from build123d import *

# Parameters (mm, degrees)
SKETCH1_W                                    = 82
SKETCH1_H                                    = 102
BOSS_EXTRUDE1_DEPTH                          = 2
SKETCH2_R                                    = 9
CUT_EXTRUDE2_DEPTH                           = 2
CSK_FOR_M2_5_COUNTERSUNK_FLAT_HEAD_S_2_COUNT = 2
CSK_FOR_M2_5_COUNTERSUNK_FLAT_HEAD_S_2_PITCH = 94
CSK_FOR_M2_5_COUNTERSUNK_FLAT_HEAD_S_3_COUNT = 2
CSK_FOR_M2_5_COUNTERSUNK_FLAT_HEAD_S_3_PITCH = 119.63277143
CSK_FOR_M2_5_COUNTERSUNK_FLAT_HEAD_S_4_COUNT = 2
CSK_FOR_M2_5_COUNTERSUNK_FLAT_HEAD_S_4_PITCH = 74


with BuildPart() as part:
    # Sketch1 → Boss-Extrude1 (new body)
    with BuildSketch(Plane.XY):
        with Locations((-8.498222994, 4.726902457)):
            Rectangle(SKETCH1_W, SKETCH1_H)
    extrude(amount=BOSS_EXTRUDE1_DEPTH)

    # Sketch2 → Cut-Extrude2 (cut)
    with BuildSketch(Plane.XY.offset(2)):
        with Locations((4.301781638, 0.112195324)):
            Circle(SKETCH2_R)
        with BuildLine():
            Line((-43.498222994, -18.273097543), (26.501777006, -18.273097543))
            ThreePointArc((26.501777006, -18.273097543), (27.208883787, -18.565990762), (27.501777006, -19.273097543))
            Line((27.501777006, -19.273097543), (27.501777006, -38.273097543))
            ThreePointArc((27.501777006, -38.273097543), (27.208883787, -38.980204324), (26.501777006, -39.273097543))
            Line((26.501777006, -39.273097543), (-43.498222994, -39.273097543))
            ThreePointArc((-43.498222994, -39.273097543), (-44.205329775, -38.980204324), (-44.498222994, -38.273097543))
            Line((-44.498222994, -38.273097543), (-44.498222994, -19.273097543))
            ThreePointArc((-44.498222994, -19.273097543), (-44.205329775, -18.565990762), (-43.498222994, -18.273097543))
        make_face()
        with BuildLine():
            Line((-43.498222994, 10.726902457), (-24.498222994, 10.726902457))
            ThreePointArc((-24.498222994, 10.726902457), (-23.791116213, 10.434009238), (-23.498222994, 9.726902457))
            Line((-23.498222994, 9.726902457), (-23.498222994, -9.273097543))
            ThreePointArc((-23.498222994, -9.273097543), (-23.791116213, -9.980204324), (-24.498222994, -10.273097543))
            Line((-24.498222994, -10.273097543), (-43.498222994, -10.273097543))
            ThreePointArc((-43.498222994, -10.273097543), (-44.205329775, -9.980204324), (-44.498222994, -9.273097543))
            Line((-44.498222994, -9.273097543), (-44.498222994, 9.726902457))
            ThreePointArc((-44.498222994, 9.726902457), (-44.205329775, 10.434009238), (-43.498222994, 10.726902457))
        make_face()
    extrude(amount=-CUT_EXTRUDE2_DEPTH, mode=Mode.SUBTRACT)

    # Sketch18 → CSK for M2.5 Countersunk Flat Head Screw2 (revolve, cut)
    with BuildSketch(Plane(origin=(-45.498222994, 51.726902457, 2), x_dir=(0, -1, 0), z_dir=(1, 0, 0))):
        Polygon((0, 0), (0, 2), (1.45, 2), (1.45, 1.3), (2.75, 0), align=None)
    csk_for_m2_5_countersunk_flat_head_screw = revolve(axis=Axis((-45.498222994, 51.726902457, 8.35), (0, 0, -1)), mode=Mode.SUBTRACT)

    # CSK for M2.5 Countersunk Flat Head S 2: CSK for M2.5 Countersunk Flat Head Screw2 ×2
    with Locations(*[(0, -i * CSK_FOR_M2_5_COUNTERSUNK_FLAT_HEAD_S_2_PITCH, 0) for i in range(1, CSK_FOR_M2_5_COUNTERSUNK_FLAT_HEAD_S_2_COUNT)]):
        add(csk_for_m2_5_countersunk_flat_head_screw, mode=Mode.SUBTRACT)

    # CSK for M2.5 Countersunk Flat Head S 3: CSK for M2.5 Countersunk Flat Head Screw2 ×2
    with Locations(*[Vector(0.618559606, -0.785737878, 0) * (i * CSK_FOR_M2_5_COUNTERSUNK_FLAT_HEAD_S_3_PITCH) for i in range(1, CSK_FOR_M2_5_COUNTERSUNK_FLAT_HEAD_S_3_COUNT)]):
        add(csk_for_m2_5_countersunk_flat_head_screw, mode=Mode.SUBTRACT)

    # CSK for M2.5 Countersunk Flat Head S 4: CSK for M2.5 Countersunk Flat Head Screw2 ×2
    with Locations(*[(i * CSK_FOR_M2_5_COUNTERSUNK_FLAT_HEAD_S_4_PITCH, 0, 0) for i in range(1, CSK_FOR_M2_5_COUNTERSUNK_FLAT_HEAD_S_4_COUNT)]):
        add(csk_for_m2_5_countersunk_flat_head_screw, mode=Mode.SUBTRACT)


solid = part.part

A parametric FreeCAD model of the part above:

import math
import FreeCAD as App
import Part
import Sketcher

V = App.Vector
Q = App.Units.Quantity

doc = App.newDocument("Part")
params = doc.addObject("Spreadsheet::Sheet", "Params")
for row, (alias, value) in enumerate([
    ("sketch1_width", "82 mm"),
    ("sketch1_height", "102 mm"),
    ("pad1_length", "2 mm"),
    ("sketch2_diameter", "18 mm"),
    ("sketch2_radius", "1 mm"),
    ("sketch2_width", "70 mm"),
    ("sketch2_width2", "19 mm"),
    ("pocket1_length", "2 mm"),
    ("sketch3_height", "2 mm"),
    ("sketch3_height2", "0.7 mm"),
    ("sketch3_width", "2.75 mm"),
    ("groove_angle", "360 deg"),
    ("linearpattern_pitch", "94 mm"),
    ("linearpattern2_pitch", "119.632771 mm"),
    ("linearpattern3_pitch", "74 mm"),
], start=1):
    params.set(f"A{row}", alias)
    params.set(f"B{row}", "=" + value)
    params.setAlias(f"B{row}", alias)

body = doc.addObject("PartDesign::Body", "Body")

# Sketch on XY plane
sketch1 = doc.addObject("Sketcher::SketchObject", "Sketch")
body.addObject(sketch1)
sketch1.AttachmentSupport = (doc.XY_Plane, [""])
sketch1.MapMode = "FlatFace"
sketch1.addGeometry(Part.LineSegment(V(-49, 56, 0), V(-49, -46, 0)), False)
sketch1.addGeometry(Part.LineSegment(V(-49, -46, 0), V(33, -46, 0)), False)
sketch1.addGeometry(Part.LineSegment(V(33, -46, 0), V(33, 56, 0)), False)
sketch1.addGeometry(Part.LineSegment(V(33, 56, 0), V(-49, 56, 0)), False)
sketch1.addConstraint(Sketcher.Constraint("Coincident", 0, 2, 1, 1))
sketch1.addConstraint(Sketcher.Constraint("Coincident", 1, 2, 2, 1))
sketch1.addConstraint(Sketcher.Constraint("Coincident", 2, 2, 3, 1))
sketch1.addConstraint(Sketcher.Constraint("Coincident", 3, 2, 0, 1))
sketch1.addConstraint(Sketcher.Constraint("Vertical", 0))
sketch1.addConstraint(Sketcher.Constraint("Horizontal", 1))
sketch1.addConstraint(Sketcher.Constraint("Vertical", 2))
sketch1.addConstraint(Sketcher.Constraint("Horizontal", 3))
sketch1.addConstraint(Sketcher.Constraint("DistanceX", 1, 1, 1, 2, Q("82 mm")))
sketch1.addConstraint(Sketcher.Constraint("DistanceY", 0, 2, 0, 1, Q("102 mm")))
sketch1.addConstraint(Sketcher.Constraint("DistanceX", 0, 2, -1, 1, Q("49.498223 mm")))
sketch1.addConstraint(Sketcher.Constraint("DistanceY", 0, 2, -1, 1, Q("46.273098 mm")))
sketch1.setExpression("Constraints[8]", "Params.sketch1_width")
sketch1.setExpression("Constraints[9]", "Params.sketch1_height")
pad1 = doc.addObject("PartDesign::Pad", "Pad")
body.addObject(pad1)
pad1.Profile = sketch1
pad1.setExpression("Length", "Params.pad1_length")

# Sketch on XY plane
sketch2 = doc.addObject("Sketcher::SketchObject", "Sketch001")
body.addObject(sketch2)
sketch2.AttachmentSupport = (doc.XY_Plane, [""])
sketch2.MapMode = "FlatFace"
sketch2.AttachmentOffset = App.Placement(V(0, 0, 2), App.Rotation())
sketch2.addGeometry(Part.Circle(V(4.3, 0.1, 0), V(0, 0, 1), 9), False)
sketch2.addGeometry(Part.LineSegment(V(26.5, -18.3, 0), V(-43.5, -18.3, 0)), False)
sketch2.addGeometry(Part.ArcOfCircle(Part.Circle(V(-43.5, -19.3, 0), V(0, 0, 1), 1), math.radians(90), math.radians(180)), False)
sketch2.addGeometry(Part.LineSegment(V(-44.5, -19.3, 0), V(-44.5, -38.3, 0)), False)
sketch2.addGeometry(Part.ArcOfCircle(Part.Circle(V(-43.5, -38.3, 0), V(0, 0, 1), 1), math.radians(-180), math.radians(-90)), False)
sketch2.addGeometry(Part.LineSegment(V(-43.5, -39.3, 0), V(26.5, -39.3, 0)), False)
sketch2.addGeometry(Part.ArcOfCircle(Part.Circle(V(26.5, -38.3, 0), V(0, 0, 1), 1), math.radians(-90), math.radians(0)), False)
sketch2.addGeometry(Part.LineSegment(V(27.5, -38.3, 0), V(27.5, -19.3, 0)), False)
sketch2.addGeometry(Part.ArcOfCircle(Part.Circle(V(26.5, -19.3, 0), V(0, 0, 1), 1), math.radians(0), math.radians(90)), False)
sketch2.addGeometry(Part.LineSegment(V(-24.5, 10.7, 0), V(-43.5, 10.7, 0)), False)
sketch2.addGeometry(Part.ArcOfCircle(Part.Circle(V(-43.5, 9.7, 0), V(0, 0, 1), 1), math.radians(90), math.radians(180)), False)
sketch2.addGeometry(Part.LineSegment(V(-44.5, 9.7, 0), V(-44.5, -9.3, 0)), False)
sketch2.addGeometry(Part.ArcOfCircle(Part.Circle(V(-43.5, -9.3, 0), V(0, 0, 1), 1), math.radians(-180), math.radians(-90)), False)
sketch2.addGeometry(Part.LineSegment(V(-43.5, -10.3, 0), V(-24.5, -10.3, 0)), False)
sketch2.addGeometry(Part.ArcOfCircle(Part.Circle(V(-24.5, -9.3, 0), V(0, 0, 1), 1), math.radians(-90), math.radians(0)), False)
sketch2.addGeometry(Part.LineSegment(V(-23.5, -9.3, 0), V(-23.5, 9.7, 0)), False)
sketch2.addGeometry(Part.ArcOfCircle(Part.Circle(V(-24.5, 9.7, 0), V(0, 0, 1), 1), math.radians(0), math.radians(90)), False)
sketch2.addConstraint(Sketcher.Constraint("Tangent", 1, 2, 2, 1))
sketch2.addConstraint(Sketcher.Constraint("Tangent", 2, 2, 3, 1))
sketch2.addConstraint(Sketcher.Constraint("Tangent", 3, 2, 4, 1))
sketch2.addConstraint(Sketcher.Constraint("Tangent", 4, 2, 5, 1))
sketch2.addConstraint(Sketcher.Constraint("Tangent", 5, 2, 6, 1))
sketch2.addConstraint(Sketcher.Constraint("Tangent", 6, 2, 7, 1))
sketch2.addConstraint(Sketcher.Constraint("Tangent", 7, 2, 8, 1))
sketch2.addConstraint(Sketcher.Constraint("Tangent", 8, 2, 1, 1))
sketch2.addConstraint(Sketcher.Constraint("Tangent", 9, 2, 10, 1))
sketch2.addConstraint(Sketcher.Constraint("Tangent", 10, 2, 11, 1))
sketch2.addConstraint(Sketcher.Constraint("Tangent", 11, 2, 12, 1))
sketch2.addConstraint(Sketcher.Constraint("Tangent", 12, 2, 13, 1))
sketch2.addConstraint(Sketcher.Constraint("Tangent", 13, 2, 14, 1))
sketch2.addConstraint(Sketcher.Constraint("Tangent", 14, 2, 15, 1))
sketch2.addConstraint(Sketcher.Constraint("Tangent", 15, 2, 16, 1))
sketch2.addConstraint(Sketcher.Constraint("Tangent", 16, 2, 9, 1))
sketch2.addConstraint(Sketcher.Constraint("Horizontal", 1))
sketch2.addConstraint(Sketcher.Constraint("Vertical", 3))
sketch2.addConstraint(Sketcher.Constraint("Horizontal", 5))
sketch2.addConstraint(Sketcher.Constraint("Vertical", 7))
sketch2.addConstraint(Sketcher.Constraint("Horizontal", 9))
sketch2.addConstraint(Sketcher.Constraint("Vertical", 11))
sketch2.addConstraint(Sketcher.Constraint("Horizontal", 13))
sketch2.addConstraint(Sketcher.Constraint("Vertical", 15))
sketch2.addConstraint(Sketcher.Constraint("Equal", 2, 4))
sketch2.addConstraint(Sketcher.Constraint("Equal", 4, 6))
sketch2.addConstraint(Sketcher.Constraint("Equal", 6, 8))
sketch2.addConstraint(Sketcher.Constraint("Equal", 8, 10))
sketch2.addConstraint(Sketcher.Constraint("Equal", 10, 12))
sketch2.addConstraint(Sketcher.Constraint("Equal", 12, 14))
sketch2.addConstraint(Sketcher.Constraint("Equal", 14, 16))
sketch2.addConstraint(Sketcher.Constraint("Vertical", 4, 3, 10, 3))
sketch2.addConstraint(Sketcher.Constraint("Equal", 13, 3))
sketch2.addConstraint(Sketcher.Constraint("Equal", 7, 11))
sketch2.addConstraint(Sketcher.Constraint("Diameter", 0, Q("18 mm")))
sketch2.addConstraint(Sketcher.Constraint("Radius", 2, Q("1 mm")))
sketch2.addConstraint(Sketcher.Constraint("DistanceX", 1, 2, 1, 1, Q("70 mm")))
sketch2.addConstraint(Sketcher.Constraint("DistanceX", 9, 2, 9, 1, Q("19 mm")))
sketch2.addConstraint(Sketcher.Constraint("DistanceY", 2, 3, 10, 3, Q("29 mm")))
sketch2.addConstraint(Sketcher.Constraint("DistanceX", -1, 1, 0, 3, Q("4.301782 mm")))
sketch2.addConstraint(Sketcher.Constraint("DistanceY", -1, 1, 0, 3, Q("0.112195 mm")))
sketch2.addConstraint(Sketcher.Constraint("DistanceX", 2, 3, -1, 1, Q("43.498223 mm")))
sketch2.addConstraint(Sketcher.Constraint("DistanceY", 2, 3, -1, 1, Q("19.273098 mm")))
sketch2.setExpression("Constraints[34]", "Params.sketch2_diameter")
sketch2.setExpression("Constraints[35]", "Params.sketch2_radius")
sketch2.setExpression("Constraints[36]", "Params.sketch2_width")
sketch2.setExpression("Constraints[37]", "Params.sketch2_width2")
pocket1 = doc.addObject("PartDesign::Pocket", "Pocket")
body.addObject(pocket1)
pocket1.Profile = sketch2
pocket1.setExpression("Length", "Params.pocket1_length")

# Sketch on YZ plane
sketch3 = doc.addObject("Sketcher::SketchObject", "Sketch002")
body.addObject(sketch3)
sketch3.AttachmentSupport = (doc.YZ_Plane, [""])
sketch3.MapMode = "FlatFace"
sketch3.AttachmentOffset = App.Placement(V(0, 0, -45.498223), App.Rotation())
sketch3.addGeometry(Part.LineSegment(V(51.7, 0, 0), V(51.7, 2, 0)), False)
sketch3.addGeometry(Part.LineSegment(V(51.7, 2, 0), V(49, 2, 0)), False)
sketch3.addGeometry(Part.LineSegment(V(49, 2, 0), V(50.3, 0.7, 0)), False)
sketch3.addGeometry(Part.LineSegment(V(50.3, 0.7, 0), V(50.3, 0, 0)), False)
sketch3.addGeometry(Part.LineSegment(V(50.3, 0, 0), V(51.7, 0, 0)), False)
sketch3.addGeometry(Part.LineSegment(V(51.7, 2, 0), V(51.7, 0, 0)), True)  # axis
sketch3.addConstraint(Sketcher.Constraint("Coincident", 0, 2, 1, 1))
sketch3.addConstraint(Sketcher.Constraint("Coincident", 1, 2, 2, 1))
sketch3.addConstraint(Sketcher.Constraint("Coincident", 2, 2, 3, 1))
sketch3.addConstraint(Sketcher.Constraint("Coincident", 3, 2, 4, 1))
sketch3.addConstraint(Sketcher.Constraint("Coincident", 4, 2, 0, 1))
sketch3.addConstraint(Sketcher.Constraint("Vertical", 0))
sketch3.addConstraint(Sketcher.Constraint("Horizontal", 1))
sketch3.addConstraint(Sketcher.Constraint("Vertical", 3))
sketch3.addConstraint(Sketcher.Constraint("Horizontal", 4))
sketch3.addConstraint(Sketcher.Constraint("Vertical", 5))
sketch3.addConstraint(Sketcher.Constraint("Coincident", 5, 1, 0, 2))
sketch3.addConstraint(Sketcher.Constraint("PointOnObject", 3, 2, -1))
sketch3.addConstraint(Sketcher.Constraint("PointOnObject", 5, 2, -1))
sketch3.addConstraint(Sketcher.Constraint("DistanceY", 0, 1, 0, 2, Q("2 mm")))
sketch3.addConstraint(Sketcher.Constraint("Angle", 2, Q("-45 deg")))
sketch3.addConstraint(Sketcher.Constraint("DistanceY", 3, 2, 3, 1, Q("0.7 mm")))
sketch3.addConstraint(Sketcher.Constraint("DistanceX", 1, 2, 1, 1, Q("2.75 mm")))
sketch3.addConstraint(Sketcher.Constraint("DistanceX", -1, 1, 0, 2, Q("51.726902 mm")))
sketch3.setExpression("Constraints[13]", "Params.sketch3_height")
sketch3.setExpression("Constraints[15]", "Params.sketch3_height2")
sketch3.setExpression("Constraints[16]", "Params.sketch3_width")
groove = doc.addObject("PartDesign::Groove", "Groove")
body.addObject(groove)
groove.Profile = sketch3
groove.ReferenceAxis = (sketch3, ["Axis0"])
groove.setExpression("Angle", "Params.groove_angle")
doc.recompute()

linearpattern = doc.addObject("PartDesign::LinearPattern", "LinearPattern")
body.addObject(linearpattern)
linearpattern.Originals = [groove]
linearpattern.Direction = (doc.Y_Axis, [""])
linearpattern.Mode = "offset"
linearpattern.setExpression("Offset", "Params.linearpattern_pitch")
linearpattern.Occurrences = 2
linearpattern.Reversed = True
body.Tip = linearpattern
doc.recompute()

datumline = doc.addObject("PartDesign::Line", "DatumLine")
body.addObject(datumline)
datumline.Placement = App.Placement(V(0, 0, 0), App.Rotation(V(0, 0, 1), V(0.618559606, -0.785737878, 0)))
linearpattern2 = doc.addObject("PartDesign::LinearPattern", "LinearPattern001")
body.addObject(linearpattern2)
linearpattern2.Originals = [groove]
linearpattern2.Direction = (datumline, [""])
linearpattern2.Mode = "offset"
linearpattern2.setExpression("Offset", "Params.linearpattern2_pitch")
linearpattern2.Occurrences = 2
body.Tip = linearpattern2
doc.recompute()

linearpattern3 = doc.addObject("PartDesign::LinearPattern", "LinearPattern002")
body.addObject(linearpattern3)
linearpattern3.Originals = [groove]
linearpattern3.Direction = (doc.X_Axis, [""])
linearpattern3.Mode = "offset"
linearpattern3.setExpression("Offset", "Params.linearpattern3_pitch")
linearpattern3.Occurrences = 2
body.Tip = linearpattern3

doc.recompute()
